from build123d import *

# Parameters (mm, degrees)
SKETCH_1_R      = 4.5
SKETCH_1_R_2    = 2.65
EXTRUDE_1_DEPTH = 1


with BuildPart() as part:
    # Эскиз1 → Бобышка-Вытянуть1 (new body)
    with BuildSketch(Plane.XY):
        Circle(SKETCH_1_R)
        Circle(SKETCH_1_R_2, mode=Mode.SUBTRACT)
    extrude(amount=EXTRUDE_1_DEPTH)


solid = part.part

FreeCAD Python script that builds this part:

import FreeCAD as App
import Part
import Sketcher
from FreeCAD import Vector
Q = App.Units.Quantity

doc = App.newDocument("Part")
params = doc.addObject("Spreadsheet::Sheet", "Params")
for row, (alias, value) in enumerate([
    ("sketch1_diameter", "9 mm"),
    ("sketch1_diameter2", "5.3 mm"),
    ("pad1_length", "1 mm"),
], start=1):
    params.set(f"A{row}", alias)
    params.set(f"B{row}", "=" + value)
    params.setAlias(f"B{row}", alias)

body = doc.addObject("PartDesign::Body", "Body")

sketch1 = doc.addObject("Sketcher::SketchObject", "Sketch")
body.addObject(sketch1)
sketch1.AttachmentSupport = (doc.XY_Plane, [""])
sketch1.MapMode = "FlatFace"
sketch1.addGeometry([
    Part.Circle(Vector(0, 0, 0), Vector(0, 0, 1), 4.5),
    Part.Circle(Vector(0, 0, 0), Vector(0, 0, 1), 2.6),
], False)
sketch1.addConstraint([
    Sketcher.Constraint("Coincident", 0, 3, -1, 1),
    Sketcher.Constraint("Coincident", 1, 3, -1, 1),
    Sketcher.Constraint("Diameter", 0, Q("9 mm")),
    Sketcher.Constraint("Diameter", 1, Q("5.3 mm")),
])
sketch1.setExpression("Constraints[2]", "Params.sketch1_diameter")
sketch1.setExpression("Constraints[3]", "Params.sketch1_diameter2")
pad1 = doc.addObject("PartDesign::Pad", "Pad")
body.addObject(pad1)
pad1.Profile = sketch1
pad1.setExpression("Length", "Params.pad1_length")

doc.recompute()
